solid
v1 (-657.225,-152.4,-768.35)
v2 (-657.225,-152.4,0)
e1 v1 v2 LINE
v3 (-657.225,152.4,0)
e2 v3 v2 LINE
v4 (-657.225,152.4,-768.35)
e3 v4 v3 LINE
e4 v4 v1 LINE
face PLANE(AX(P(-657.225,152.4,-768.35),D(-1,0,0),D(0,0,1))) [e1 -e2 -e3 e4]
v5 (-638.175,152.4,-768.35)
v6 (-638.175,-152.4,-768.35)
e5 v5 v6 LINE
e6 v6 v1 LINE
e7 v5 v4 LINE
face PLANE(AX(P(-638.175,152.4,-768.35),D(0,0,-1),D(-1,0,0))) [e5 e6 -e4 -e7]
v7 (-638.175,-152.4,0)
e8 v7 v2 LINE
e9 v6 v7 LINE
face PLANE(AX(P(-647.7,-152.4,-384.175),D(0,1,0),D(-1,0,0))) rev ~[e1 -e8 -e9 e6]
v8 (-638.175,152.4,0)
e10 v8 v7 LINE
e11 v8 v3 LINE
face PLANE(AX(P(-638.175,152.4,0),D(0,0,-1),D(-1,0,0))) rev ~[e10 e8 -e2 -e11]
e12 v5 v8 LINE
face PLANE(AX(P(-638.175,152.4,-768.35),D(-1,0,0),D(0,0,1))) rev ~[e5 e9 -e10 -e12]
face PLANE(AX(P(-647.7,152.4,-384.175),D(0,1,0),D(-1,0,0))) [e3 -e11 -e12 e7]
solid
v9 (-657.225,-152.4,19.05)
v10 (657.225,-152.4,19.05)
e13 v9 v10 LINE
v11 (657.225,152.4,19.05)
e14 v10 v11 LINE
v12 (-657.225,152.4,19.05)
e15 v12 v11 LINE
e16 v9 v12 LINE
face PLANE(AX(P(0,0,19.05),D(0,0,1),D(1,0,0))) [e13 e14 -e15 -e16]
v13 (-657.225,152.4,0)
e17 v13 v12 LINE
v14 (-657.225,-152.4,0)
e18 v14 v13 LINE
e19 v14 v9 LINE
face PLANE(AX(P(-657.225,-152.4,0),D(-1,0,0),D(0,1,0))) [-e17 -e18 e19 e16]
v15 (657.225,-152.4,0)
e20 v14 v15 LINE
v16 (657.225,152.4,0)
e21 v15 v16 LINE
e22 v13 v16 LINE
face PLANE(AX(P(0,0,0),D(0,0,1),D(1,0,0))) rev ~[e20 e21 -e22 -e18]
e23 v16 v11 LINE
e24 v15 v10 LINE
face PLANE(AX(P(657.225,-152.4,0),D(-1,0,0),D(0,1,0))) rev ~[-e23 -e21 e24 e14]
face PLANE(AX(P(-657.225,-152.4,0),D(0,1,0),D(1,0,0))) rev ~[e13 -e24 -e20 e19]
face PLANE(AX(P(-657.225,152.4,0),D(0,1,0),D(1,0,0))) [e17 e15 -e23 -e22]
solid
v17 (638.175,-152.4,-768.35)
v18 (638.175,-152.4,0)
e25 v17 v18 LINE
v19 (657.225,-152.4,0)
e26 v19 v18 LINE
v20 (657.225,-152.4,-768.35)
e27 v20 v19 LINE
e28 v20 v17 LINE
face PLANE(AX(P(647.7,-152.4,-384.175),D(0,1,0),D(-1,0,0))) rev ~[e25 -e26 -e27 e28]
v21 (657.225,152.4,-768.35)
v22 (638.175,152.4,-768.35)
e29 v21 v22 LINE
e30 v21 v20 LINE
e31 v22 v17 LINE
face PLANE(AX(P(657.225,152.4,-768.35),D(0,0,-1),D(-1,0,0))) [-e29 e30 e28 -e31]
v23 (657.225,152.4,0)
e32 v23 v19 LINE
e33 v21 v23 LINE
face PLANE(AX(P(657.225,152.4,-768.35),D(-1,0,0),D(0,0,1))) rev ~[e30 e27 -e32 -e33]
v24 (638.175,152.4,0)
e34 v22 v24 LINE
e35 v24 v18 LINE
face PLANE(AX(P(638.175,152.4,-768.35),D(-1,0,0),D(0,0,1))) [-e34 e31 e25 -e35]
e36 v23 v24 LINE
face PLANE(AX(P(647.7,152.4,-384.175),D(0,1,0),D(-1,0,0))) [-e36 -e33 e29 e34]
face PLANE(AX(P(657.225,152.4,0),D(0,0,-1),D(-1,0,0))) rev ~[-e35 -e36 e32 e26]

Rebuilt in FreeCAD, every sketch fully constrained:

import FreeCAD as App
import Part
import Sketcher
Q = App.Units.Quantity


def add_polygon(sketch, points):
    """Adds a closed chain of lines whose ends are joined by coincident constraints."""
    first, n = sketch.GeometryCount, len(points)
    for a, b in zip(points, points[1:] + points[:1]):
        sketch.addGeometry(Part.LineSegment(App.Vector(*a, 0), App.Vector(*b, 0)), False)
    for i in range(n):
        sketch.addConstraint(Sketcher.Constraint("Coincident", first + i, 2, first + (i + 1) % n, 1))

doc = App.newDocument("Part")
body = doc.addObject("PartDesign::Body", "Body")

sketch1 = body.newObject("Sketcher::SketchObject", "Sketch")
sketch1.AttachmentSupport = (doc.getObject("XY_Plane"), [""])
sketch1.MapMode = "FlatFace"
add_polygon(sketch1, [(-657, 152), (-657, -152), (657, -152), (657, 152)])
sketch1.addConstraint(Sketcher.Constraint("Vertical", 0))
sketch1.addConstraint(Sketcher.Constraint("Horizontal", 1))
sketch1.addConstraint(Sketcher.Constraint("Vertical", 2))
sketch1.addConstraint(Sketcher.Constraint("Horizontal", 3))
sketch1.addConstraint(Sketcher.Constraint("Symmetric", 0, 2, 2, 2, -1, 1))
sketch1.addConstraint(Sketcher.Constraint("DistanceY", 0, 2, 0, 1, Q("12 in")))
sketch1.addConstraint(Sketcher.Constraint("DistanceX", 1, 1, 1, 2, Q("51.75 in")))
pad1 = body.newObject("PartDesign::Pad", "Pad")
pad1.Profile = sketch1
pad1.Length = Q("0.75 in")
body2 = doc.addObject("PartDesign::Body", "Body001")
body2.AllowCompound = True

sketch2 = body2.newObject("Sketcher::SketchObject", "Sketch001")
sketch2.AttachmentSupport = (doc.getObject("XZ_Plane001"), [""])
sketch2.MapMode = "FlatFace"
sketch2.AttachmentOffset = App.Placement(App.Vector(0, 0, -6 * 25.4), App.Rotation())
add_polygon(sketch2, [(657, 0), (657, -768), (638, -768), (638, 0)])
add_polygon(sketch2, [(-638, 0), (-638, -768), (-657, -768), (-657, 0)])
sketch2.addConstraint(Sketcher.Constraint("Vertical", 0))
sketch2.addConstraint(Sketcher.Constraint("Horizontal", 1))
sketch2.addConstraint(Sketcher.Constraint("Vertical", 2))
sketch2.addConstraint(Sketcher.Constraint("Horizontal", 3))
sketch2.addConstraint(Sketcher.Constraint("Vertical", 4))
sketch2.addConstraint(Sketcher.Constraint("Horizontal", 5))
sketch2.addConstraint(Sketcher.Constraint("Vertical", 6))
sketch2.addConstraint(Sketcher.Constraint("Horizontal", 7))
sketch2.addConstraint(Sketcher.Constraint("Symmetric", 3, 2, 6, 2, -1, 1))
sketch2.addConstraint(Sketcher.Constraint("Symmetric", 1, 2, 4, 2, -2))
sketch2.addConstraint(Sketcher.Constraint("PointOnObject", 2, 2, -1))
sketch2.addConstraint(Sketcher.Constraint("DistanceX", 4, 2, 0, 2, Q("51 in")))
sketch2.addConstraint(Sketcher.Constraint("DistanceX", 1, 2, 1, 1, Q("0.75 in")))
sketch2.addConstraint(Sketcher.Constraint("DistanceY", 0, 2, 0, 1, Q("30.25 in")))
pad2 = body2.newObject("PartDesign::Pad", "Pad001")
pad2.Profile = sketch2
pad2.Length = Q("12 in")

doc.recompute()
